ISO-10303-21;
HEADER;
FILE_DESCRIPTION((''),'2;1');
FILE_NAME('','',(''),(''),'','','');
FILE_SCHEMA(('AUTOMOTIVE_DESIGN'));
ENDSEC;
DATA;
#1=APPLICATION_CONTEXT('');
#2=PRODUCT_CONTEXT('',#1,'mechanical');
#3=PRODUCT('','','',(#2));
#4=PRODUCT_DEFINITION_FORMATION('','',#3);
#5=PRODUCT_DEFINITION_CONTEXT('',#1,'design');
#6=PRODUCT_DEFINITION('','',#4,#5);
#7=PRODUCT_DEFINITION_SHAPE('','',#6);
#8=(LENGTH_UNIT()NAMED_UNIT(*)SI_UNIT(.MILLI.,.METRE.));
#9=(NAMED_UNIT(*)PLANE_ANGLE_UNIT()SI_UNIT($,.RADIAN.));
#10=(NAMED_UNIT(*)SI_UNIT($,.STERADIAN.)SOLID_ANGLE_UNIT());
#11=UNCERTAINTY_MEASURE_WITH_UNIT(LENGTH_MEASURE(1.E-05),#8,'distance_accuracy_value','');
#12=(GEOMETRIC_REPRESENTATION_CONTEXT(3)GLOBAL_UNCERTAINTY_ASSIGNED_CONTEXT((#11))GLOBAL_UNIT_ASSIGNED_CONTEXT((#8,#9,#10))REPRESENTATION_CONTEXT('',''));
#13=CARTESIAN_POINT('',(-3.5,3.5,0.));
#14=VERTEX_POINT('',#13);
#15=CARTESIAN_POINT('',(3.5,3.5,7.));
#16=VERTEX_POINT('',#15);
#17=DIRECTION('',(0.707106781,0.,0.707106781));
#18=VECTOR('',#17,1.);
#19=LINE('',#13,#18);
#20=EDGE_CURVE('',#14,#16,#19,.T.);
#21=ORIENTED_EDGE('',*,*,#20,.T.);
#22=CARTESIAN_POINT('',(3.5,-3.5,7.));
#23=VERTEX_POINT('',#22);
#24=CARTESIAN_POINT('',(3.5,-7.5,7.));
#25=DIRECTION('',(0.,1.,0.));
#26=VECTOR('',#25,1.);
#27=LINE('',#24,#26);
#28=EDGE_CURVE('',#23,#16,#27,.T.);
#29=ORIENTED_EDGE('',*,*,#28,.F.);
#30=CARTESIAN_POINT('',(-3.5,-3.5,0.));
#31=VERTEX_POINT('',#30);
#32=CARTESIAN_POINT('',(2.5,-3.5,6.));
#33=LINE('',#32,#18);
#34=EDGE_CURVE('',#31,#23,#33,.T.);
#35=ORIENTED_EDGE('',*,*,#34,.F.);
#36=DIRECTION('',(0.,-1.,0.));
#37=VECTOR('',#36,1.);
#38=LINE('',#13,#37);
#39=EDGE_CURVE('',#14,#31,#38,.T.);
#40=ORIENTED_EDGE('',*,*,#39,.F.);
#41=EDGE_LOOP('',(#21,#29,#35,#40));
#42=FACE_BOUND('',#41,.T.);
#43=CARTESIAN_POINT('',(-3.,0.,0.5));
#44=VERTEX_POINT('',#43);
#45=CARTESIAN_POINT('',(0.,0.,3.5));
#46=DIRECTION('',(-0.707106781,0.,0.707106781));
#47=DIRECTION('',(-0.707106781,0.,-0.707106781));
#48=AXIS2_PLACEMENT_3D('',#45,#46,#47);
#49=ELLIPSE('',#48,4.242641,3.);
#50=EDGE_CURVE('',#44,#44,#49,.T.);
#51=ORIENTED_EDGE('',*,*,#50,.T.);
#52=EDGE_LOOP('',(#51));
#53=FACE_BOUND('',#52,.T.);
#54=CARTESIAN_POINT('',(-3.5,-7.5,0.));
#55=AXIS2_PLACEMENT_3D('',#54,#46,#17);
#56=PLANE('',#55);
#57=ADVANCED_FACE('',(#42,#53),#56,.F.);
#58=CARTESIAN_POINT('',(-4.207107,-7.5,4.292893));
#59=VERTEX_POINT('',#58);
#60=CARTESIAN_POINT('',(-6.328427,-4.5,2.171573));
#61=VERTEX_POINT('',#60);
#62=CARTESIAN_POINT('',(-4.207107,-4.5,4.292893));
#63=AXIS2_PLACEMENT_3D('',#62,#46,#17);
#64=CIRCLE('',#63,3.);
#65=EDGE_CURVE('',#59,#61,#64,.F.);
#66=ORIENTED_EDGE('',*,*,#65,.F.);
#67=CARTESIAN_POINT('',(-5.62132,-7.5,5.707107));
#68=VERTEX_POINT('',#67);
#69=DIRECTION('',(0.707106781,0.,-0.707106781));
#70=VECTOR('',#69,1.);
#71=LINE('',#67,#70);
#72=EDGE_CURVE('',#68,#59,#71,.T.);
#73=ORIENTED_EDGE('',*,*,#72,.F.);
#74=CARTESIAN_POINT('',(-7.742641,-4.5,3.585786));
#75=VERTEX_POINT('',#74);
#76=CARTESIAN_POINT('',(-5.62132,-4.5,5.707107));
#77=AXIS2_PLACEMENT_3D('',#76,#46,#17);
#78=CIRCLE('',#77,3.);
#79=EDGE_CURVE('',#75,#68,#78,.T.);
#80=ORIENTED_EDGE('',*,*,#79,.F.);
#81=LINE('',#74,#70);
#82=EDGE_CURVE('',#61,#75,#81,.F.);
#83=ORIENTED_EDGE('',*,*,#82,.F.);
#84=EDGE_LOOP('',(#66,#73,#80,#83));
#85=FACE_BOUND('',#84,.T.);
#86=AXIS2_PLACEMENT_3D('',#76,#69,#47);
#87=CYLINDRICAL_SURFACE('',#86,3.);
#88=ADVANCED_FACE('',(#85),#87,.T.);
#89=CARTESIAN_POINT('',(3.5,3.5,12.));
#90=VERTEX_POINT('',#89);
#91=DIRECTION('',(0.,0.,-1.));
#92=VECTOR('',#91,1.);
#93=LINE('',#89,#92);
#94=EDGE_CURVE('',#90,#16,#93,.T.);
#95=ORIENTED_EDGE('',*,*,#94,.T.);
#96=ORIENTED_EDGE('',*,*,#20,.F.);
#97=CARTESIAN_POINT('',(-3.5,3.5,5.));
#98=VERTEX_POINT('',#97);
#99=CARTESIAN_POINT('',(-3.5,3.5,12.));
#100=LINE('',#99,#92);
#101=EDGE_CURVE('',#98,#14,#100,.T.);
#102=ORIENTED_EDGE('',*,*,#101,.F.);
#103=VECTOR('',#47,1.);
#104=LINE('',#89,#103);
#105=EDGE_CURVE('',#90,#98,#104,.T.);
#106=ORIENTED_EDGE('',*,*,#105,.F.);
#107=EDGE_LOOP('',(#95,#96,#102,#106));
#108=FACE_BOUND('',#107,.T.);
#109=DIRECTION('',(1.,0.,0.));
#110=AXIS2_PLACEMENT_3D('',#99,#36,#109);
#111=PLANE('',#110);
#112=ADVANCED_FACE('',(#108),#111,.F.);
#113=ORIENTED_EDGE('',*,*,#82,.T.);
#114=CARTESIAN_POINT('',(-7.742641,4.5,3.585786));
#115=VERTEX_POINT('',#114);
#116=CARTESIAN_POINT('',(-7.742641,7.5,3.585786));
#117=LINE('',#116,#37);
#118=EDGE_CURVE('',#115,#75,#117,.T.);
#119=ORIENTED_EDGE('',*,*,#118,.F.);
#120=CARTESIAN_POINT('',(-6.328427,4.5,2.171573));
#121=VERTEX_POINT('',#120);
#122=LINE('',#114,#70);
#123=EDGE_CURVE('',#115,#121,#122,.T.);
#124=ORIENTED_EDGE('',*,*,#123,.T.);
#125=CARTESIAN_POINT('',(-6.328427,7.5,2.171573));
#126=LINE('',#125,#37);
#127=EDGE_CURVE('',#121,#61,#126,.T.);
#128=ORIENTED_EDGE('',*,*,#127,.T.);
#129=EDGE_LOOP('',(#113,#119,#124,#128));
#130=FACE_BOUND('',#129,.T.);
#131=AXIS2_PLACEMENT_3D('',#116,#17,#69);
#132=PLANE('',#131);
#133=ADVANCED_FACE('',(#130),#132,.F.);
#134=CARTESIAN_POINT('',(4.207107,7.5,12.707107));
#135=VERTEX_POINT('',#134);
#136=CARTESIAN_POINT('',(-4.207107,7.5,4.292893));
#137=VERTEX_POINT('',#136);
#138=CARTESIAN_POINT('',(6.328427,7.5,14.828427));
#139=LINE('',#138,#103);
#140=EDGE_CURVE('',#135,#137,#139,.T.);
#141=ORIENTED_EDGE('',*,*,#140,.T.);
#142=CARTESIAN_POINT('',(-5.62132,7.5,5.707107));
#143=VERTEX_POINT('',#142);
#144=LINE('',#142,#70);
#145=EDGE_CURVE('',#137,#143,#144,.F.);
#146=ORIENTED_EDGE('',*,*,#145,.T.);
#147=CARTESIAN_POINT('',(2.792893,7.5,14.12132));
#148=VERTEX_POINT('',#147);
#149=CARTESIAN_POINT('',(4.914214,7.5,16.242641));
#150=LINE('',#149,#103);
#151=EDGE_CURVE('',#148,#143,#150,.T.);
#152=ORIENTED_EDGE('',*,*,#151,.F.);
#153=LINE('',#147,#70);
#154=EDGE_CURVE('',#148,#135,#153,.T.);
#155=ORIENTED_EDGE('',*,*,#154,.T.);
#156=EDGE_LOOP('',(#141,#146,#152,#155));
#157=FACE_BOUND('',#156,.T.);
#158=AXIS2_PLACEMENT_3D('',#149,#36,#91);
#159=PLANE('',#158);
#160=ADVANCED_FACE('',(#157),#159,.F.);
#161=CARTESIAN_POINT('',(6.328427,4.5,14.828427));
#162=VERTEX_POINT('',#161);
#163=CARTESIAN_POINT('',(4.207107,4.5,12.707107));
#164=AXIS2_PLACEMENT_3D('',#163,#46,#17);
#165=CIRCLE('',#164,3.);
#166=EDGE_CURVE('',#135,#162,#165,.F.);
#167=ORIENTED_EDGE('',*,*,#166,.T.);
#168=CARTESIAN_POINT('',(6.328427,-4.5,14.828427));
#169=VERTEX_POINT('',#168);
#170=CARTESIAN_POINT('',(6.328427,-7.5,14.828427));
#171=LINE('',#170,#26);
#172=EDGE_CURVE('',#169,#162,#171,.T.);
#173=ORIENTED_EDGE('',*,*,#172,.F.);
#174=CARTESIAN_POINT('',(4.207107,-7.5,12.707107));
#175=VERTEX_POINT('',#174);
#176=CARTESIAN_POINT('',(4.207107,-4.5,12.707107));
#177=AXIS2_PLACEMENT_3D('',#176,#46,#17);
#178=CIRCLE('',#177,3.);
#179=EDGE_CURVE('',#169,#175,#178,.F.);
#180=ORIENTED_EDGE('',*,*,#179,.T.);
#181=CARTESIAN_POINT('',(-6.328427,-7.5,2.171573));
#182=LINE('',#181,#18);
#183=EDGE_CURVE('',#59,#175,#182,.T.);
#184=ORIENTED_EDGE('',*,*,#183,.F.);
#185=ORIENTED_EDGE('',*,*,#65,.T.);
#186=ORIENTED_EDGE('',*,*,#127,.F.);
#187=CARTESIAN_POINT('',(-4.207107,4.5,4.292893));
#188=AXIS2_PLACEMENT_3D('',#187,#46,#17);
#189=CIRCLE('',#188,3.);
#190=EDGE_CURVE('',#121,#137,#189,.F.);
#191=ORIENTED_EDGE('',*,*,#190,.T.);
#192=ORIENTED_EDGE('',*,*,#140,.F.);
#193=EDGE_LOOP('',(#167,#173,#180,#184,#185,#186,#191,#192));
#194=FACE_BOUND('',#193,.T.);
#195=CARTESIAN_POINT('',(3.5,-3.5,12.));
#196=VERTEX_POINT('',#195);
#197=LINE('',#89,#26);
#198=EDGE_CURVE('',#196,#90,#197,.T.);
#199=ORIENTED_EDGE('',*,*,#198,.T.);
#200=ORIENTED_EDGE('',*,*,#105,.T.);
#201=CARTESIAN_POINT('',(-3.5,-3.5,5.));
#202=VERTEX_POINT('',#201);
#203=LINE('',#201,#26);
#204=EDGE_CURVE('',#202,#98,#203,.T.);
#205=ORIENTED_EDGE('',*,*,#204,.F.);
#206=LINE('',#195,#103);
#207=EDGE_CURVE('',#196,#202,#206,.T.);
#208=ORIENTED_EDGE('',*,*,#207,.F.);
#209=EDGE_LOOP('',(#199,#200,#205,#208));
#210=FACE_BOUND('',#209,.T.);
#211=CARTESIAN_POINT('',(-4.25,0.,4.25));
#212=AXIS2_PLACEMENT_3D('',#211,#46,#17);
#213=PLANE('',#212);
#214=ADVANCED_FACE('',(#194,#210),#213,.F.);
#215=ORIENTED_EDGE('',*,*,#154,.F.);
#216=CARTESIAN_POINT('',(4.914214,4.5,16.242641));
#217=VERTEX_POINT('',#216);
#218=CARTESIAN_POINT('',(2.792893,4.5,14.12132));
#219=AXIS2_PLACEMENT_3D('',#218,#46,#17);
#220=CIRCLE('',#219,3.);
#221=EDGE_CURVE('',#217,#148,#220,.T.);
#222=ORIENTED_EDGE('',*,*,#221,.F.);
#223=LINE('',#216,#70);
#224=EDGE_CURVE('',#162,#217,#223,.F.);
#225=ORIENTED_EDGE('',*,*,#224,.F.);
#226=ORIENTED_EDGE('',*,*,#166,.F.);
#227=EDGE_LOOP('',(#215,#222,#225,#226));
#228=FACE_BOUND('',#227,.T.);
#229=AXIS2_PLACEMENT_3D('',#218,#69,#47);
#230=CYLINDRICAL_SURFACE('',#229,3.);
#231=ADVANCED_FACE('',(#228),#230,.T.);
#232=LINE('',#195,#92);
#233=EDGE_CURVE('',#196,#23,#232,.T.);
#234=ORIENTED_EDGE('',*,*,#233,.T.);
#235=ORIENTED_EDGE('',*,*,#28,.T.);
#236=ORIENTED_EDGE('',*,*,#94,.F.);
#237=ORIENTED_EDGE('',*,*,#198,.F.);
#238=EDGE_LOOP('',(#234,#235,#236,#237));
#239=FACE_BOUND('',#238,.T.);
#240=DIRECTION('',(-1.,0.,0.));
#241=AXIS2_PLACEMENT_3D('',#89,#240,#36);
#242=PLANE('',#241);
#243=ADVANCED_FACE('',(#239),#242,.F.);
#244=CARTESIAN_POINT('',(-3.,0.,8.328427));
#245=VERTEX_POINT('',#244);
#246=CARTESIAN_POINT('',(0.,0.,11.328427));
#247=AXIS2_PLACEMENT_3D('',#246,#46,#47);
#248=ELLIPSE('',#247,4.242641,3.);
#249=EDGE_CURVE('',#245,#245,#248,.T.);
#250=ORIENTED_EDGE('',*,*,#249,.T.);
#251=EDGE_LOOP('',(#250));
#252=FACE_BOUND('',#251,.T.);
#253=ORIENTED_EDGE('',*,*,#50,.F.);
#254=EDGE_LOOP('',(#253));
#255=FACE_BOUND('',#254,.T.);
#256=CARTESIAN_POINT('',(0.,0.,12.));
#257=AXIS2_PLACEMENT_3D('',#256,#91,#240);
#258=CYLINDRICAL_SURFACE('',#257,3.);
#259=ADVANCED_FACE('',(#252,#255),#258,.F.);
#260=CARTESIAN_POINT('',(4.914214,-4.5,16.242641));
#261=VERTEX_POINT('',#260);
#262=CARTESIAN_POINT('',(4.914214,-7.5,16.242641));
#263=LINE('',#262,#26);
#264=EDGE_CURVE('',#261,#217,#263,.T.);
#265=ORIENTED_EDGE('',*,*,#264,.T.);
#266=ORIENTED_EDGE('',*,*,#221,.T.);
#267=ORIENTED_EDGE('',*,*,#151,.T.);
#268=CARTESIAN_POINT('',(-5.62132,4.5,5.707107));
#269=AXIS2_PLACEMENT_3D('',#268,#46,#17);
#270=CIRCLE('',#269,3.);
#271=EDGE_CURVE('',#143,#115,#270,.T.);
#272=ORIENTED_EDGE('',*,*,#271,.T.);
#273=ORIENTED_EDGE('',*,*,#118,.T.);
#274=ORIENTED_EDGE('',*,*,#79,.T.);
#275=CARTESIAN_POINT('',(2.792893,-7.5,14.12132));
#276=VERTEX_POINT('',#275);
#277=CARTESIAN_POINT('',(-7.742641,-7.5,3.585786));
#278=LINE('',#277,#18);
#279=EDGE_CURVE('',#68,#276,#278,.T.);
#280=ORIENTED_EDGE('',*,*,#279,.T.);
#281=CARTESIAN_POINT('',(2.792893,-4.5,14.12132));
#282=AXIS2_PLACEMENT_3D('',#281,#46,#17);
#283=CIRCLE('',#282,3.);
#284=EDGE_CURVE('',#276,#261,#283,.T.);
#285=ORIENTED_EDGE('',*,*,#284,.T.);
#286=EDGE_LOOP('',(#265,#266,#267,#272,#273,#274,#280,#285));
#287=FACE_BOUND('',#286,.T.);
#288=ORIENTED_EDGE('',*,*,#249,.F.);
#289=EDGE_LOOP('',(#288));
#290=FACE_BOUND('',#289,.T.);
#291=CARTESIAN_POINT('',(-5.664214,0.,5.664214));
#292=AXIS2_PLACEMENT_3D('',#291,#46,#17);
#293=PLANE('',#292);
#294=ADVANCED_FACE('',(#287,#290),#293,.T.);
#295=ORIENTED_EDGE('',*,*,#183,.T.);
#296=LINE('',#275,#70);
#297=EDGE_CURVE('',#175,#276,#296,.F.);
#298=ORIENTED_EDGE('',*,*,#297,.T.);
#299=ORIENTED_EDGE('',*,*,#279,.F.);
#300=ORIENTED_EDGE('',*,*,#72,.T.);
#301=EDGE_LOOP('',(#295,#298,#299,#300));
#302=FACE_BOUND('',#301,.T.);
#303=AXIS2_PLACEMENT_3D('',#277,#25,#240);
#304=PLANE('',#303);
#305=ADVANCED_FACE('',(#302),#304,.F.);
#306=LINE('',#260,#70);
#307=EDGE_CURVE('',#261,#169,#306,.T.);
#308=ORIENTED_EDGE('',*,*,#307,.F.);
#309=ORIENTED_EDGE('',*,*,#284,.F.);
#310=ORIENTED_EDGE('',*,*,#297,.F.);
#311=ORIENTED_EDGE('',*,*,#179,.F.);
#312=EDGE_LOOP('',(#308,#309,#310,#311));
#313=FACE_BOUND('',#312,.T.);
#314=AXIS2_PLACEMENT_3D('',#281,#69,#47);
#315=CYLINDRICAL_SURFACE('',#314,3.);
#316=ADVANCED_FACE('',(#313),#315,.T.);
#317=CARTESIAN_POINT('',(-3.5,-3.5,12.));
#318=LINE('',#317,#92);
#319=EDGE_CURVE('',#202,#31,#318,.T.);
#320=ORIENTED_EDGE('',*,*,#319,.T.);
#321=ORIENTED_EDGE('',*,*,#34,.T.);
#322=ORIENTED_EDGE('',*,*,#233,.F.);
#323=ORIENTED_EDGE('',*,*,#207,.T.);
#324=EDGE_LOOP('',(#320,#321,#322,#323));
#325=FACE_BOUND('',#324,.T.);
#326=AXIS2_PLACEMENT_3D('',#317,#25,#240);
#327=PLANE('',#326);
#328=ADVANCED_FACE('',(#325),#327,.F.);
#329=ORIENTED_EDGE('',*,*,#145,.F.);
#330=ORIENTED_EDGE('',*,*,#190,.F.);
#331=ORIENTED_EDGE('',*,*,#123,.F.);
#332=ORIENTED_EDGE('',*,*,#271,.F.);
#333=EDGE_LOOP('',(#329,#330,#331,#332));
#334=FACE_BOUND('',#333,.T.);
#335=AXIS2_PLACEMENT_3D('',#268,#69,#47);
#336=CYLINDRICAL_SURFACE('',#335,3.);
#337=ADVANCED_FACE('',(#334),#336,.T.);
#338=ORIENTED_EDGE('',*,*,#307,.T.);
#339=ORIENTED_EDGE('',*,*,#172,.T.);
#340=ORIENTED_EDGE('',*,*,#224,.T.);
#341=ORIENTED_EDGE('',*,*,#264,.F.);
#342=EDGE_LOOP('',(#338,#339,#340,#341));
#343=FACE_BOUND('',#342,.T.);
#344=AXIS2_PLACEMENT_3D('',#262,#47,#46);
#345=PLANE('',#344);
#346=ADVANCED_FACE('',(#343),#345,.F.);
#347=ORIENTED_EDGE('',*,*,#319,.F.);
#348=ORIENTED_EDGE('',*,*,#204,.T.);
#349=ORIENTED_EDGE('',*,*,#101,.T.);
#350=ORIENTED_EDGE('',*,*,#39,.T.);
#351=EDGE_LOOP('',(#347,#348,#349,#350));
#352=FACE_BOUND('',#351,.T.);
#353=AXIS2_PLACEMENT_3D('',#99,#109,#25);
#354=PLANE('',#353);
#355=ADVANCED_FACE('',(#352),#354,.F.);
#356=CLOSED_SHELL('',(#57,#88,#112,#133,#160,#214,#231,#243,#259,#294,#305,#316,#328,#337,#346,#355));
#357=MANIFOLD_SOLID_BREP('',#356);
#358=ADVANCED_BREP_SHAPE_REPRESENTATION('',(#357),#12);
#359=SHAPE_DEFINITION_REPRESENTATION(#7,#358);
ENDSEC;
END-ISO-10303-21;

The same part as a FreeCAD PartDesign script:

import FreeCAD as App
import Part
import Sketcher
Q = App.Units.Quantity


def edges_at(feature, points):
    """Names of the edges that pass closest to the given points."""
    edges = feature.Shape.Edges
    near = lambda p: min(range(len(edges)), key=lambda i: edges[i].distToShape(Part.Vertex(*p))[0])
    return sorted({f"Edge{near(p) + 1}" for p in points})


def add_polygon(sketch, points):
    """Adds a closed chain of lines whose ends are joined by coincident constraints."""
    first, n = sketch.GeometryCount, len(points)
    for a, b in zip(points, points[1:] + points[:1]):
        sketch.addGeometry(Part.LineSegment(App.Vector(*a, 0), App.Vector(*b, 0)), False)
    for i in range(n):
        sketch.addConstraint(Sketcher.Constraint("Coincident", first + i, 2, first + (i + 1) % n, 1))

doc = App.newDocument("Part")
body = doc.addObject("PartDesign::Body", "Body")

# Sketch on XY plane
sketch1 = body.newObject("Sketcher::SketchObject", "Sketch")
sketch1.AttachmentSupport = (doc.getObject("XY_Plane"), [""])
sketch1.MapMode = "FlatFace"
add_polygon(sketch1, [(-3.5, 3.5), (-3.5, -3.5), (3.5, -3.5), (3.5, 3.5)])  # lines 0-3
sketch1.addGeometry(Part.Circle(App.Vector(0, 0, 0), App.Vector(0, 0, 1), 3), False)  # 4
sketch1.addConstraint(Sketcher.Constraint("Vertical", 0))
sketch1.addConstraint(Sketcher.Constraint("Horizontal", 1))
sketch1.addConstraint(Sketcher.Constraint("Vertical", 2))
sketch1.addConstraint(Sketcher.Constraint("Horizontal", 3))
sketch1.addConstraint(Sketcher.Constraint("Coincident", 4, 3, -1, 1))
sketch1.addConstraint(Sketcher.Constraint("Symmetric", 0, 2, 2, 2, -1, 1))
sketch1.addConstraint(Sketcher.Constraint("Equal", 3, 0))
sketch1.addConstraint(Sketcher.Constraint("Diameter", 4, Q("6 mm")))
sketch1.addConstraint(Sketcher.Constraint("DistanceX", 1, 1, 1, 2, Q("7 mm")))
pad1 = body.newObject("PartDesign::Pad", "Pad")
pad1.Profile = sketch1
pad1.Length = 12

# Sketch on XZ plane
sketch2 = body.newObject("Sketcher::SketchObject", "Sketch001")
sketch2.AttachmentSupport = (doc.getObject("XZ_Plane"), [""])
sketch2.MapMode = "FlatFace"
sketch2.AttachmentOffset = App.Placement(App.Vector(0, 0, -3.5), App.Rotation())
add_polygon(sketch2, [(-3.5, 12), (3.5, 12), (-3.5, 5)])  # lines 0-2
sketch2.addConstraint(Sketcher.Constraint("Horizontal", 0))
sketch2.addConstraint(Sketcher.Constraint("Vertical", 2))
sketch2.addConstraint(Sketcher.Constraint("Equal", 0, 2))
sketch2.addConstraint(Sketcher.Constraint("DistanceX", 0, 1, 0, 2, Q("7 mm")))
sketch2.addConstraint(Sketcher.Constraint("DistanceY", -1, 1, 0, 2, Q("12 mm")))
sketch2.addConstraint(Sketcher.Constraint("DistanceX", -1, 1, 0, 2, Q("3.5 mm")))
pocket1 = body.newObject("PartDesign::Pocket", "Pocket")
pocket1.Profile = sketch2
pocket1.Type = "ThroughAll"
pocket1.Reversed = True

# Sketch on an angled plane
sketch3 = body.newObject("Sketcher::SketchObject", "Sketch002")
sketch3.Placement = App.Placement(App.Vector(-4.25, 0, 4.25), App.Rotation(App.Vector(0.707106781, 0, 0.707106781), App.Vector(0, 0.999999999, 0), App.Vector(-0.707106781, 0, 0.707106781), "ZXY"))
add_polygon(sketch3, [(-2.93934, 7.5), (-2.93934, -7.5), (14.960155, -7.5), (14.960155, 7.5)])  # lines 0-3
sketch3.addConstraint(Sketcher.Constraint("Vertical", 0))
sketch3.addConstraint(Sketcher.Constraint("Horizontal", 1))
sketch3.addConstraint(Sketcher.Constraint("Vertical", 2))
sketch3.addConstraint(Sketcher.Constraint("Horizontal", 3))
sketch3.addConstraint(Sketcher.Constraint("DistanceY", 0, 2, 0, 1, Q("15 mm")))
sketch3.addConstraint(Sketcher.Constraint("DistanceY", 0, 2, -1, 1, Q("7.5 mm")))
sketch3.addConstraint(Sketcher.Constraint("DistanceX", 1, 1, 1, 2, Q("17.899495 mm")))
sketch3.addConstraint(Sketcher.Constraint("DistanceX", 0, 2, -1, 1, Q("2.93934 mm")))
pad2 = body.newObject("PartDesign::Pad", "Pad001")
pad2.Profile = sketch3
pad2.Length = 2

# Sketch on XY plane
sketch4 = body.newObject("Sketcher::SketchObject", "Sketch003")
sketch4.AttachmentSupport = (doc.getObject("XY_Plane"), [""])
sketch4.MapMode = "FlatFace"
sketch4.addGeometry(Part.Circle(App.Vector(0, 0, 0), App.Vector(0, 0, 1), 3), False)
sketch4.addConstraint(Sketcher.Constraint("Coincident", 0, 3, -1, 1))
sketch4.addConstraint(Sketcher.Constraint("Diameter", 0, Q("6 mm")))
pocket2 = body.newObject("PartDesign::Pocket", "Pocket001")
pocket2.Profile = sketch4
pocket2.Type = "ThroughAll"
pocket2.Reversed = True

# Sketch on XZ plane
sketch5 = body.newObject("Sketcher::SketchObject", "Sketch004")
sketch5.AttachmentSupport = (doc.getObject("XZ_Plane"), [""])
sketch5.MapMode = "FlatFace"
sketch5.AttachmentOffset = App.Placement(App.Vector(0, 0, -3.5), App.Rotation())
add_polygon(sketch5, [(-3.5, 0), (3.5, 7), (3.5, 0)])  # lines 0-2
sketch5.addConstraint(Sketcher.Constraint("Vertical", 1))
sketch5.addConstraint(Sketcher.Constraint("Horizontal", 2))
sketch5.addConstraint(Sketcher.Constraint("Symmetric", 1, 2, 2, 2, -1, 1))
sketch5.addConstraint(Sketcher.Constraint("Equal", 2, 1))
sketch5.addConstraint(Sketcher.Constraint("DistanceX", 2, 2, 2, 1, Q("7 mm")))
pocket3 = body.newObject("PartDesign::Pocket", "Pocket002")
pocket3.Profile = sketch5
pocket3.Type = "ThroughAll"
pocket3.Reversed = True
doc.recompute()

fillet = body.newObject("PartDesign::Fillet", "Fillet")
fillet.Base = (pocket3, edges_at(pocket3, [
    (5.621, -7.5, 15.536),
    (5.621, 7.5, 15.536),
    (-7.036, 7.5, 2.879),
    (-7.036, -7.5, 2.879),
]))
fillet.Radius = 3

doc.recompute()
